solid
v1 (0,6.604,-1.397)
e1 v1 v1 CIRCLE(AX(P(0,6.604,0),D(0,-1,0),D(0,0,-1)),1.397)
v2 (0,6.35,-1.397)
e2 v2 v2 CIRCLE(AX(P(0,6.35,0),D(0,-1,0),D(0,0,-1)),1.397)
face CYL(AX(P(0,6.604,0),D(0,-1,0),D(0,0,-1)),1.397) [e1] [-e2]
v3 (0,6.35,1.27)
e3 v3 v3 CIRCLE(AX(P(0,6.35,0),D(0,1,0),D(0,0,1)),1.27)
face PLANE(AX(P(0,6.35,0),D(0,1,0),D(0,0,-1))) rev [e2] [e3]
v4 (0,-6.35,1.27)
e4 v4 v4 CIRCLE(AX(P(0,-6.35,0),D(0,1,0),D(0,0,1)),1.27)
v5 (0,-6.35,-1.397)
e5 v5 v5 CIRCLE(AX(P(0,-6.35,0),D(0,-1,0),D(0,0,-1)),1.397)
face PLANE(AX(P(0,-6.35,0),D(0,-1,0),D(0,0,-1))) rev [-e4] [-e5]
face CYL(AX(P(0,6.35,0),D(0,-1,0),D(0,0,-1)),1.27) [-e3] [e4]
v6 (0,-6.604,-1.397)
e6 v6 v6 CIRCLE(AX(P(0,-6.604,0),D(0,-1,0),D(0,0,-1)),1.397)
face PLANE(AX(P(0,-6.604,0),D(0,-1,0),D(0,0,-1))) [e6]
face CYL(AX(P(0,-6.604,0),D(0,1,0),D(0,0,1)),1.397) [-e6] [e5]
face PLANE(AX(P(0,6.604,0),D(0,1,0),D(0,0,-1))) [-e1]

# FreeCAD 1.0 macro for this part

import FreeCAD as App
import Part
import Sketcher
Q = App.Units.Quantity

doc = App.newDocument("Part")
body = doc.addObject("PartDesign::Body", "Body")

# Sketch on XZ plane
sketch1 = doc.addObject("Sketcher::SketchObject", "Sketch")
body.addObject(sketch1)
sketch1.AttachmentSupport = (doc.XZ_Plane, [""])
sketch1.MapMode = "FlatFace"
sketch1.addGeometry(Part.Circle(App.Vector(0, 0, 0), App.Vector(0, 0, 1), 1.3), False)
sketch1.addConstraint([
    Sketcher.Constraint("Coincident", 0, 3, -1, 1),
    Sketcher.Constraint("Diameter", 0, Q("0.1 in")),
])
pad1 = doc.addObject("PartDesign::Pad", "Pad")
body.addObject(pad1)
pad1.Profile = sketch1
pad1.Length = Q("0.5 in")
pad1.Midplane = True

# Sketch on XZ plane
sketch2 = doc.addObject("Sketcher::SketchObject", "Sketch001")
body.addObject(sketch2)
sketch2.AttachmentSupport = (doc.XZ_Plane, [""])
sketch2.MapMode = "FlatFace"
sketch2.AttachmentOffset = App.Placement(App.Vector(0, 0, 0.25 * 25.4), App.Rotation())
sketch2.addGeometry(Part.Circle(App.Vector(0, 0, 0), App.Vector(0, 0, 1), 1.4), False)
sketch2.addConstraint([
    Sketcher.Constraint("Coincident", 0, 3, -1, 1),
    Sketcher.Constraint("Diameter", 0, Q("0.11 in")),
])
pad2 = doc.addObject("PartDesign::Pad", "Pad001")
body.addObject(pad2)
pad2.Profile = sketch2
pad2.Length = Q("0.01 in")
doc.recompute()

mirrored = doc.addObject("PartDesign::Mirrored", "Mirrored")
body.addObject(mirrored)
mirrored.Originals = [pad2]
mirrored.MirrorPlane = (doc.XZ_Plane, [""])
body.Tip = mirrored

doc.recompute()
